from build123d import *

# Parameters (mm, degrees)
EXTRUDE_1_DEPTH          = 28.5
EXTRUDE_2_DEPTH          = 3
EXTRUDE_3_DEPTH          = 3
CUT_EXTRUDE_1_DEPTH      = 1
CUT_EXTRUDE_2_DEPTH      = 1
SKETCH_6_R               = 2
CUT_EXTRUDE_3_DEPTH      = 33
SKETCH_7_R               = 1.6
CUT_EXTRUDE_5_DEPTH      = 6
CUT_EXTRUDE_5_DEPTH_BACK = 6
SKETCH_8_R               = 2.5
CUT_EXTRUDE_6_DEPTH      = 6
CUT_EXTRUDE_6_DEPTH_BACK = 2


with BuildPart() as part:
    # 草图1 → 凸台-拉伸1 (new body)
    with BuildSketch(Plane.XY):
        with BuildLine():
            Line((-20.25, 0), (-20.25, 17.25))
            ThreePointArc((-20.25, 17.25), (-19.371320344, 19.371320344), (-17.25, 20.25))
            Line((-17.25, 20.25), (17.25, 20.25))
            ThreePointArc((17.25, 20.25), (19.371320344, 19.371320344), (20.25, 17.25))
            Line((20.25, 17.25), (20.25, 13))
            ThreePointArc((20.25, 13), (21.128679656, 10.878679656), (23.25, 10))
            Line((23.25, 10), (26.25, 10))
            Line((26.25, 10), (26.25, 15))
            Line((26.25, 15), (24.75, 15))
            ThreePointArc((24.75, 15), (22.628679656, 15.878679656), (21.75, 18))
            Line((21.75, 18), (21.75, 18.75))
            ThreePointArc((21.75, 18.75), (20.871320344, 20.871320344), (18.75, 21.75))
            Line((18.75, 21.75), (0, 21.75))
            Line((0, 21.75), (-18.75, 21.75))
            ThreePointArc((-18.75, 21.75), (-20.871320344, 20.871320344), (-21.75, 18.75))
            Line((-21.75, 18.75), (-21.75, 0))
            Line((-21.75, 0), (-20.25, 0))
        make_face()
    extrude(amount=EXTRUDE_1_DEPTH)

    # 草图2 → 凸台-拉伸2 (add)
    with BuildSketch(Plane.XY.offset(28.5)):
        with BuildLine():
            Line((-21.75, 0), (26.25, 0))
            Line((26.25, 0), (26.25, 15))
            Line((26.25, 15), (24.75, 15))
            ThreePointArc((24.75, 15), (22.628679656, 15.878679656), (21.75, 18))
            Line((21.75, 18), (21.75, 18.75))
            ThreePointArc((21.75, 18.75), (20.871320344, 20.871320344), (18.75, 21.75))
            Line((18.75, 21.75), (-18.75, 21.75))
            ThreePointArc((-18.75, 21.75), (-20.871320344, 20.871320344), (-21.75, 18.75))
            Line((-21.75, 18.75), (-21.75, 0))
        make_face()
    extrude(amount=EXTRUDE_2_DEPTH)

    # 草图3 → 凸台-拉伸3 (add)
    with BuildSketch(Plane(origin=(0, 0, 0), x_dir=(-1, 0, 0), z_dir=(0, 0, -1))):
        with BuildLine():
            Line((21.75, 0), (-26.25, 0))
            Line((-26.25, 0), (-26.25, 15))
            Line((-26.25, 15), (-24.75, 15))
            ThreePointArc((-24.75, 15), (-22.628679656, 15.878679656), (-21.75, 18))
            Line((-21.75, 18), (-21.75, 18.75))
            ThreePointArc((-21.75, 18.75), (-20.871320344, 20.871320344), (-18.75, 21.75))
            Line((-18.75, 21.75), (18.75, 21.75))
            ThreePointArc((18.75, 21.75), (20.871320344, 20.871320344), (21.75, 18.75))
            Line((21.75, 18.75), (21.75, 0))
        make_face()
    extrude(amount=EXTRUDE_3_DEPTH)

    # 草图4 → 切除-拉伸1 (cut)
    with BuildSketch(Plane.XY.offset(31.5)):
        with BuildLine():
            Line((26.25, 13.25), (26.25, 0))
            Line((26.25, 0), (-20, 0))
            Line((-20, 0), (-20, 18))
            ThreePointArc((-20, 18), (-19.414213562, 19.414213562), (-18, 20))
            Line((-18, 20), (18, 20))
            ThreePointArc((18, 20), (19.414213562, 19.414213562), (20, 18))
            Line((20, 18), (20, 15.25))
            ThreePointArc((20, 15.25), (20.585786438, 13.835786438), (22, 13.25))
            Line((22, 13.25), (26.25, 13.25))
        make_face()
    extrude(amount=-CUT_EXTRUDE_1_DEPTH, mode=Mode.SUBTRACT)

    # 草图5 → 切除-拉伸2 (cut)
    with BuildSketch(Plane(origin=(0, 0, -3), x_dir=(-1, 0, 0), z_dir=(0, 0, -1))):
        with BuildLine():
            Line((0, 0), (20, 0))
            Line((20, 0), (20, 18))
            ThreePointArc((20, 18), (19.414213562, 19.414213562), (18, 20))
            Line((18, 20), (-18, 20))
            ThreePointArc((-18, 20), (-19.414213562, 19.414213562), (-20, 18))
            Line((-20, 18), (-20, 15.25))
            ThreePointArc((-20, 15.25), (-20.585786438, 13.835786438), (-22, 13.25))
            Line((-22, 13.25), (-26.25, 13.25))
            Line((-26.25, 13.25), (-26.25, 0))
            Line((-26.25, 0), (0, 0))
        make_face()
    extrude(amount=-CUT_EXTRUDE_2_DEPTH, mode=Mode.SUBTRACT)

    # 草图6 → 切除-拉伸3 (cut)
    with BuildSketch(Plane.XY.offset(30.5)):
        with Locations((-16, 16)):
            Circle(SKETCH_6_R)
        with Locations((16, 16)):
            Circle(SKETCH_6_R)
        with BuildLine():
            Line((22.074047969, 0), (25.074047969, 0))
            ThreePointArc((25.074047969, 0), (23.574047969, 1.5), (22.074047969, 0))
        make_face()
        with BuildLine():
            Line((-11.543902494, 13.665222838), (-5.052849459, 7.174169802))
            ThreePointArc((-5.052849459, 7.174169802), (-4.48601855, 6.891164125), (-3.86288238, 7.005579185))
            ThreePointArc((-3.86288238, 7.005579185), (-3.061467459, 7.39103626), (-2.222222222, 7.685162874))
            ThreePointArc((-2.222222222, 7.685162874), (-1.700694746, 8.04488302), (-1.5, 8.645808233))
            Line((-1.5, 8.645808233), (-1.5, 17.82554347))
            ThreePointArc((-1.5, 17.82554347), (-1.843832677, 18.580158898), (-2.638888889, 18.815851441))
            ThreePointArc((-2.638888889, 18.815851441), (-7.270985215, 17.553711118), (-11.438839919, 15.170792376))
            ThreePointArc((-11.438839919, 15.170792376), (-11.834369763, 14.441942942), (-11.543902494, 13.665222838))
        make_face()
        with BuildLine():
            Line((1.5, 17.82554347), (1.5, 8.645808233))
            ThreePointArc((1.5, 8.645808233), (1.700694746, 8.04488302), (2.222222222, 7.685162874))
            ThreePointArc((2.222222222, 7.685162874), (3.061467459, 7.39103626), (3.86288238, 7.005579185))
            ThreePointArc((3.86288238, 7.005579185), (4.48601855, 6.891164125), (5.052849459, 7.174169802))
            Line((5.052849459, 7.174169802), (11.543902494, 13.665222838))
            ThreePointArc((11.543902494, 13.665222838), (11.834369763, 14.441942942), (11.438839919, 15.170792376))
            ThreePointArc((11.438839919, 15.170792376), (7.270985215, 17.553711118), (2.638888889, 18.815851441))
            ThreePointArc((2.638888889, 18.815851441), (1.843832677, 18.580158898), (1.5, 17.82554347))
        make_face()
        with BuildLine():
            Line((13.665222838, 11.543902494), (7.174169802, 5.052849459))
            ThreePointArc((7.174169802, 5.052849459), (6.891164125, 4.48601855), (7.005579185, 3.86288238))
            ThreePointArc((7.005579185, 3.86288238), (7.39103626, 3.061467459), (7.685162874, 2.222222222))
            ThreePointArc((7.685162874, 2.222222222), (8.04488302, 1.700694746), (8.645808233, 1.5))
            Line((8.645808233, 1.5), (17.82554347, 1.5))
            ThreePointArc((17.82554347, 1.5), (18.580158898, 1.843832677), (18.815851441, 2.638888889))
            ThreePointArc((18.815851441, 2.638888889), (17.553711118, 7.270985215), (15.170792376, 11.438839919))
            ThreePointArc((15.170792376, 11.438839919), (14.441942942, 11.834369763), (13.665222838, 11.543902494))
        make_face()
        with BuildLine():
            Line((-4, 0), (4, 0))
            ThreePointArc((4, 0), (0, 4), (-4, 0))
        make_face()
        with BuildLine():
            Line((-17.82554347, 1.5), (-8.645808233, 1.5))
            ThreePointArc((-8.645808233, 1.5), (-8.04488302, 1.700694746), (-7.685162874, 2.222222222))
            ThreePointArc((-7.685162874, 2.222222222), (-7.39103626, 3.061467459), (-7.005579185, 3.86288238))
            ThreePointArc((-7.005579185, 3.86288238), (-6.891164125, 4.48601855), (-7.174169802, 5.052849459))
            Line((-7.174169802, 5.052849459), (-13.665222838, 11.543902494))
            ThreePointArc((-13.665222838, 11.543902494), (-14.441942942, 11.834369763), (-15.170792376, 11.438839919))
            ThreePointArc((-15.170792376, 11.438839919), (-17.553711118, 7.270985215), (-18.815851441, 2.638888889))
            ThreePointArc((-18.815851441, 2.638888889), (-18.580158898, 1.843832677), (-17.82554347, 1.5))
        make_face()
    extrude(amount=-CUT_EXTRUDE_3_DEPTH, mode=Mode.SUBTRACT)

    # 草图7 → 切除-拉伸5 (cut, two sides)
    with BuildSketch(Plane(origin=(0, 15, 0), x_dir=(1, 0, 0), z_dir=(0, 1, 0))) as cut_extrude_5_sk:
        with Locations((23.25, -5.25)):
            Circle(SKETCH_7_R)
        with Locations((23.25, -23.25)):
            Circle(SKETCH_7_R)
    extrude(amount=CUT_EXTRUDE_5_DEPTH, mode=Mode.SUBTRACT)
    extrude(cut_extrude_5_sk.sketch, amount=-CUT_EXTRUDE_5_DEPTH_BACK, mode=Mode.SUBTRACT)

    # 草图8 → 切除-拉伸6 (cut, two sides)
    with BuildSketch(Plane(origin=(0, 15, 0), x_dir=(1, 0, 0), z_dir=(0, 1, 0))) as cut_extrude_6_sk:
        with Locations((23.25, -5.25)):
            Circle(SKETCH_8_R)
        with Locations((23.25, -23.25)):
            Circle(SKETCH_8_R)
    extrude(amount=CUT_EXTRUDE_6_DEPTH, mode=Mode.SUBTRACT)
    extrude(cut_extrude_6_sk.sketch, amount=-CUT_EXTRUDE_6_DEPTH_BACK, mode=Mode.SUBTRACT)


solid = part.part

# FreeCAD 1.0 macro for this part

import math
import FreeCAD as App
import Part
import Sketcher
Q = App.Units.Quantity

doc = App.newDocument("Part")
body = doc.addObject("PartDesign::Body", "Body")

sketch1 = body.newObject("Sketcher::SketchObject", "Sketch")
sketch1.AttachmentSupport = (doc.getObject("XY_Plane"), [""])
sketch1.MapMode = "FlatFace"
sketch1.addGeometry(Part.LineSegment(App.Vector(-20.25, 0, 0), App.Vector(-20.25, 17.25, 0)), False)
sketch1.addGeometry(Part.ArcOfCircle(Part.Circle(App.Vector(-17.25, 17.25, 0), App.Vector(0, 0, 1), 3), math.radians(90), math.radians(180)), False)
sketch1.addGeometry(Part.LineSegment(App.Vector(-17.25, 20.25, 0), App.Vector(17.25, 20.25, 0)), False)
sketch1.addGeometry(Part.ArcOfCircle(Part.Circle(App.Vector(17.25, 17.25, 0), App.Vector(0, 0, 1), 3), math.radians(0), math.radians(90)), False)
sketch1.addGeometry(Part.LineSegment(App.Vector(20.25, 17.25, 0), App.Vector(20.25, 13, 0)), False)
sketch1.addGeometry(Part.ArcOfCircle(Part.Circle(App.Vector(23.25, 13, 0), App.Vector(0, 0, 1), 3), math.radians(180), math.radians(270)), False)
sketch1.addGeometry(Part.LineSegment(App.Vector(23.25, 10, 0), App.Vector(26.25, 10, 0)), False)
sketch1.addGeometry(Part.LineSegment(App.Vector(26.25, 10, 0), App.Vector(26.25, 15, 0)), False)
sketch1.addGeometry(Part.LineSegment(App.Vector(26.25, 15, 0), App.Vector(24.75, 15, 0)), False)
sketch1.addGeometry(Part.ArcOfCircle(Part.Circle(App.Vector(24.75, 18, 0), App.Vector(0, 0, 1), 3), math.radians(180), math.radians(270)), False)
sketch1.addGeometry(Part.LineSegment(App.Vector(21.75, 18, 0), App.Vector(21.75, 18.75, 0)), False)
sketch1.addGeometry(Part.ArcOfCircle(Part.Circle(App.Vector(18.75, 18.75, 0), App.Vector(0, 0, 1), 3), math.radians(0), math.radians(90)), False)
sketch1.addGeometry(Part.LineSegment(App.Vector(18.75, 21.75, 0), App.Vector(-18.75, 21.75, 0)), False)
sketch1.addGeometry(Part.ArcOfCircle(Part.Circle(App.Vector(-18.75, 18.75, 0), App.Vector(0, 0, 1), 3), math.radians(90), math.radians(180)), False)
sketch1.addGeometry(Part.LineSegment(App.Vector(-21.75, 18.75, 0), App.Vector(-21.75, 0, 0)), False)
sketch1.addGeometry(Part.LineSegment(App.Vector(-21.75, 0, 0), App.Vector(-20.25, 0, 0)), False)
sketch1.addConstraint(Sketcher.Constraint("Tangent", 0, 2, 1, 2))
sketch1.addConstraint(Sketcher.Constraint("Tangent", 1, 1, 2, 1))
sketch1.addConstraint(Sketcher.Constraint("Tangent", 2, 2, 3, 2))
sketch1.addConstraint(Sketcher.Constraint("Tangent", 3, 1, 4, 1))
sketch1.addConstraint(Sketcher.Constraint("Tangent", 4, 2, 5, 1))
sketch1.addConstraint(Sketcher.Constraint("Tangent", 5, 2, 6, 1))
sketch1.addConstraint(Sketcher.Constraint("Coincident", 6, 2, 7, 1))
sketch1.addConstraint(Sketcher.Constraint("Coincident", 7, 2, 8, 1))
sketch1.addConstraint(Sketcher.Constraint("Tangent", 8, 2, 9, 2))
sketch1.addConstraint(Sketcher.Constraint("Tangent", 9, 1, 10, 1))
sketch1.addConstraint(Sketcher.Constraint("Tangent", 10, 2, 11, 1))
sketch1.addConstraint(Sketcher.Constraint("Tangent", 11, 2, 12, 1))
sketch1.addConstraint(Sketcher.Constraint("Tangent", 12, 2, 13, 1))
sketch1.addConstraint(Sketcher.Constraint("Tangent", 13, 2, 14, 1))
sketch1.addConstraint(Sketcher.Constraint("Coincident", 14, 2, 15, 1))
sketch1.addConstraint(Sketcher.Constraint("Coincident", 15, 2, 0, 1))
sketch1.addConstraint(Sketcher.Constraint("Vertical", 0))
sketch1.addConstraint(Sketcher.Constraint("Horizontal", 2))
sketch1.addConstraint(Sketcher.Constraint("Vertical", 4))
sketch1.addConstraint(Sketcher.Constraint("Horizontal", 6))
sketch1.addConstraint(Sketcher.Constraint("Vertical", 7))
sketch1.addConstraint(Sketcher.Constraint("Horizontal", 8))
sketch1.addConstraint(Sketcher.Constraint("Vertical", 10))
sketch1.addConstraint(Sketcher.Constraint("Horizontal", 12))
sketch1.addConstraint(Sketcher.Constraint("Vertical", 14))
sketch1.addConstraint(Sketcher.Constraint("Horizontal", 15))
sketch1.addConstraint(Sketcher.Constraint("Equal", 1, 3))
sketch1.addConstraint(Sketcher.Constraint("Equal", 3, 5))
sketch1.addConstraint(Sketcher.Constraint("Equal", 5, 9))
sketch1.addConstraint(Sketcher.Constraint("Equal", 9, 11))
sketch1.addConstraint(Sketcher.Constraint("Equal", 11, 13))
sketch1.addConstraint(Sketcher.Constraint("PointOnObject", 14, 2, -1))
sketch1.addConstraint(Sketcher.Constraint("Equal", 8, 15))
sketch1.addConstraint(Sketcher.Constraint("Radius", 1, Q("3 mm")))
sketch1.addConstraint(Sketcher.Constraint("DistanceX", 6, 1, 6, 2, Q("3 mm")))
sketch1.addConstraint(Sketcher.Constraint("DistanceY", 7, 1, 7, 2, Q("5 mm")))
sketch1.addConstraint(Sketcher.Constraint("DistanceX", 2, 1, 2, 2, Q("34.5 mm")))
sketch1.addConstraint(Sketcher.Constraint("DistanceX", 8, 2, 8, 1, Q("1.5 mm")))
sketch1.addConstraint(Sketcher.Constraint("DistanceY", -1, 1, 5, 3, Q("13 mm")))
sketch1.addConstraint(Sketcher.Constraint("DistanceY", 0, 1, 0, 2, Q("17.25 mm")))
sketch1.addConstraint(Sketcher.Constraint("DistanceY", 10, 1, 10, 2, Q("0.75 mm")))
sketch1.addConstraint(Sketcher.Constraint("DistanceX", 1, 3, -1, 1, Q("17.25 mm")))
pad1 = body.newObject("PartDesign::Pad", "Pad")
pad1.Profile = sketch1
pad1.Length = 28.5

sketch2 = body.newObject("Sketcher::SketchObject", "Sketch001")
sketch2.AttachmentSupport = (doc.getObject("XY_Plane"), [""])
sketch2.MapMode = "FlatFace"
sketch2.AttachmentOffset = App.Placement(App.Vector(0, 0, 28.5), App.Rotation())
sketch2.addGeometry(Part.LineSegment(App.Vector(-21.75, 0, 0), App.Vector(26.25, 0, 0)), False)
sketch2.addGeometry(Part.LineSegment(App.Vector(26.25, 0, 0), App.Vector(26.25, 15, 0)), False)
sketch2.addGeometry(Part.LineSegment(App.Vector(26.25, 15, 0), App.Vector(24.75, 15, 0)), False)
sketch2.addGeometry(Part.ArcOfCircle(Part.Circle(App.Vector(24.75, 18, 0), App.Vector(0, 0, 1), 3), math.radians(180), math.radians(270)), False)
sketch2.addGeometry(Part.LineSegment(App.Vector(21.75, 18, 0), App.Vector(21.75, 18.75, 0)), False)
sketch2.addGeometry(Part.ArcOfCircle(Part.Circle(App.Vector(18.75, 18.75, 0), App.Vector(0, 0, 1), 3), math.radians(0), math.radians(90)), False)
sketch2.addGeometry(Part.LineSegment(App.Vector(18.75, 21.75, 0), App.Vector(-18.75, 21.75, 0)), False)
sketch2.addGeometry(Part.ArcOfCircle(Part.Circle(App.Vector(-18.75, 18.75, 0), App.Vector(0, 0, 1), 3), math.radians(90), math.radians(180)), False)
sketch2.addGeometry(Part.LineSegment(App.Vector(-21.75, 18.75, 0), App.Vector(-21.75, 0, 0)), False)
sketch2.addConstraint(Sketcher.Constraint("Coincident", 0, 2, 1, 1))
sketch2.addConstraint(Sketcher.Constraint("Coincident", 1, 2, 2, 1))
sketch2.addConstraint(Sketcher.Constraint("Tangent", 2, 2, 3, 2))
sketch2.addConstraint(Sketcher.Constraint("Tangent", 3, 1, 4, 1))
sketch2.addConstraint(Sketcher.Constraint("Tangent", 4, 2, 5, 1))
sketch2.addConstraint(Sketcher.Constraint("Tangent", 5, 2, 6, 1))
sketch2.addConstraint(Sketcher.Constraint("Tangent", 6, 2, 7, 1))
sketch2.addConstraint(Sketcher.Constraint("Tangent", 7, 2, 8, 1))
sketch2.addConstraint(Sketcher.Constraint("Coincident", 8, 2, 0, 1))
sketch2.addConstraint(Sketcher.Constraint("Horizontal", 0))
sketch2.addConstraint(Sketcher.Constraint("Vertical", 1))
sketch2.addConstraint(Sketcher.Constraint("Horizontal", 2))
sketch2.addConstraint(Sketcher.Constraint("Vertical", 4))
sketch2.addConstraint(Sketcher.Constraint("Horizontal", 6))
sketch2.addConstraint(Sketcher.Constraint("Vertical", 8))
sketch2.addConstraint(Sketcher.Constraint("Equal", 3, 5))
sketch2.addConstraint(Sketcher.Constraint("Equal", 5, 7))
sketch2.addConstraint(Sketcher.Constraint("PointOnObject", 0, 2, -1))
sketch2.addConstraint(Sketcher.Constraint("Radius", 3, Q("3 mm")))
sketch2.addConstraint(Sketcher.Constraint("DistanceX", 0, 1, 0, 2, Q("48 mm")))
sketch2.addConstraint(Sketcher.Constraint("DistanceY", 1, 1, 1, 2, Q("15 mm")))
sketch2.addConstraint(Sketcher.Constraint("DistanceX", 2, 2, 2, 1, Q("1.5 mm")))
sketch2.addConstraint(Sketcher.Constraint("DistanceY", 4, 1, 4, 2, Q("0.75 mm")))
sketch2.addConstraint(Sketcher.Constraint("DistanceX", -1, 1, 3, 3, Q("24.75 mm")))
pad2 = body.newObject("PartDesign::Pad", "Pad001")
pad2.Profile = sketch2
pad2.Length = 3

sketch3 = body.newObject("Sketcher::SketchObject", "Sketch002")
sketch3.AttachmentSupport = (doc.getObject("XY_Plane"), [""])
sketch3.MapMode = "FlatFace"
sketch3.addGeometry(Part.LineSegment(App.Vector(26.25, 0, 0), App.Vector(-21.75, 0, 0)), False)
sketch3.addGeometry(Part.LineSegment(App.Vector(-21.75, 0, 0), App.Vector(-21.75, 18.75, 0)), False)
sketch3.addGeometry(Part.ArcOfCircle(Part.Circle(App.Vector(-18.75, 18.75, 0), App.Vector(0, 0, 1), 3), math.radians(90), math.radians(180)), False)
sketch3.addGeometry(Part.LineSegment(App.Vector(-18.75, 21.75, 0), App.Vector(18.75, 21.75, 0)), False)
sketch3.addGeometry(Part.ArcOfCircle(Part.Circle(App.Vector(18.75, 18.75, 0), App.Vector(0, 0, 1), 3), math.radians(0), math.radians(90)), False)
sketch3.addGeometry(Part.LineSegment(App.Vector(21.75, 18.75, 0), App.Vector(21.75, 18, 0)), False)
sketch3.addGeometry(Part.ArcOfCircle(Part.Circle(App.Vector(24.75, 18, 0), App.Vector(0, 0, 1), 3), math.radians(180), math.radians(270)), False)
sketch3.addGeometry(Part.LineSegment(App.Vector(24.75, 15, 0), App.Vector(26.25, 15, 0)), False)
sketch3.addGeometry(Part.LineSegment(App.Vector(26.25, 15, 0), App.Vector(26.25, 0, 0)), False)
sketch3.addConstraint(Sketcher.Constraint("Coincident", 0, 2, 1, 1))
sketch3.addConstraint(Sketcher.Constraint("Tangent", 1, 2, 2, 2))
sketch3.addConstraint(Sketcher.Constraint("Tangent", 2, 1, 3, 1))
sketch3.addConstraint(Sketcher.Constraint("Tangent", 3, 2, 4, 2))
sketch3.addConstraint(Sketcher.Constraint("Tangent", 4, 1, 5, 1))
sketch3.addConstraint(Sketcher.Constraint("Tangent", 5, 2, 6, 1))
sketch3.addConstraint(Sketcher.Constraint("Tangent", 6, 2, 7, 1))
sketch3.addConstraint(Sketcher.Constraint("Coincident", 7, 2, 8, 1))
sketch3.addConstraint(Sketcher.Constraint("Coincident", 8, 2, 0, 1))
sketch3.addConstraint(Sketcher.Constraint("Horizontal", 0))
sketch3.addConstraint(Sketcher.Constraint("Vertical", 1))
sketch3.addConstraint(Sketcher.Constraint("Horizontal", 3))
sketch3.addConstraint(Sketcher.Constraint("Vertical", 5))
sketch3.addConstraint(Sketcher.Constraint("Horizontal", 7))
sketch3.addConstraint(Sketcher.Constraint("Vertical", 8))
sketch3.addConstraint(Sketcher.Constraint("Equal", 2, 4))
sketch3.addConstraint(Sketcher.Constraint("Equal", 4, 6))
sketch3.addConstraint(Sketcher.Constraint("PointOnObject", 0, 2, -1))
sketch3.addConstraint(Sketcher.Constraint("Radius", 2, Q("3 mm")))
sketch3.addConstraint(Sketcher.Constraint("DistanceX", 0, 2, 0, 1, Q("48 mm")))
sketch3.addConstraint(Sketcher.Constraint("DistanceY", 8, 2, 8, 1, Q("15 mm")))
sketch3.addConstraint(Sketcher.Constraint("DistanceX", 3, 1, 3, 2, Q("37.5 mm")))
sketch3.addConstraint(Sketcher.Constraint("DistanceY", 1, 1, 1, 2, Q("18.75 mm")))
sketch3.addConstraint(Sketcher.Constraint("DistanceX", 2, 3, -1, 1, Q("18.75 mm")))
pad3 = body.newObject("PartDesign::Pad", "Pad002")
pad3.Profile = sketch3
pad3.Length = 3
pad3.Reversed = True

sketch4 = body.newObject("Sketcher::SketchObject", "Sketch003")
sketch4.AttachmentSupport = (doc.getObject("XY_Plane"), [""])
sketch4.MapMode = "FlatFace"
sketch4.AttachmentOffset = App.Placement(App.Vector(0, 0, 31.5), App.Rotation())
sketch4.addGeometry(Part.LineSegment(App.Vector(26.25, 0, 0), App.Vector(26.25, 13.25, 0)), False)
sketch4.addGeometry(Part.LineSegment(App.Vector(26.25, 13.25, 0), App.Vector(22, 13.25, 0)), False)
sketch4.addGeometry(Part.ArcOfCircle(Part.Circle(App.Vector(22, 15.25, 0), App.Vector(0, 0, 1), 2), math.radians(-180), math.radians(-90)), False)
sketch4.addGeometry(Part.LineSegment(App.Vector(20, 15.25, 0), App.Vector(20, 18, 0)), False)
sketch4.addGeometry(Part.ArcOfCircle(Part.Circle(App.Vector(18, 18, 0), App.Vector(0, 0, 1), 2), math.radians(0), math.radians(90)), False)
sketch4.addGeometry(Part.LineSegment(App.Vector(18, 20, 0), App.Vector(-18, 20, 0)), False)
sketch4.addGeometry(Part.ArcOfCircle(Part.Circle(App.Vector(-18, 18, 0), App.Vector(0, 0, 1), 2), math.radians(90), math.radians(180)), False)
sketch4.addGeometry(Part.LineSegment(App.Vector(-20, 18, 0), App.Vector(-20, 0, 0)), False)
sketch4.addGeometry(Part.LineSegment(App.Vector(-20, 0, 0), App.Vector(26.25, 0, 0)), False)
sketch4.addConstraint(Sketcher.Constraint("Coincident", 0, 2, 1, 1))
sketch4.addConstraint(Sketcher.Constraint("Tangent", 1, 2, 2, 2))
sketch4.addConstraint(Sketcher.Constraint("Tangent", 2, 1, 3, 1))
sketch4.addConstraint(Sketcher.Constraint("Tangent", 3, 2, 4, 1))
sketch4.addConstraint(Sketcher.Constraint("Tangent", 4, 2, 5, 1))
sketch4.addConstraint(Sketcher.Constraint("Tangent", 5, 2, 6, 1))
sketch4.addConstraint(Sketcher.Constraint("Tangent", 6, 2, 7, 1))
sketch4.addConstraint(Sketcher.Constraint("Coincident", 7, 2, 8, 1))
sketch4.addConstraint(Sketcher.Constraint("Coincident", 8, 2, 0, 1))
sketch4.addConstraint(Sketcher.Constraint("Vertical", 0))
sketch4.addConstraint(Sketcher.Constraint("Horizontal", 1))
sketch4.addConstraint(Sketcher.Constraint("Vertical", 3))
sketch4.addConstraint(Sketcher.Constraint("Horizontal", 5))
sketch4.addConstraint(Sketcher.Constraint("Vertical", 7))
sketch4.addConstraint(Sketcher.Constraint("Horizontal", 8))
sketch4.addConstraint(Sketcher.Constraint("Equal", 2, 4))
sketch4.addConstraint(Sketcher.Constraint("Equal", 4, 6))
sketch4.addConstraint(Sketcher.Constraint("PointOnObject", 7, 2, -1))
sketch4.addConstraint(Sketcher.Constraint("Radius", 2, Q("2 mm")))
sketch4.addConstraint(Sketcher.Constraint("DistanceX", 5, 2, 5, 1, Q("36 mm")))
sketch4.addConstraint(Sketcher.Constraint("DistanceY", 7, 2, 7, 1, Q("18 mm")))
sketch4.addConstraint(Sketcher.Constraint("DistanceX", -1, 1, 2, 3, Q("22 mm")))
sketch4.addConstraint(Sketcher.Constraint("DistanceX", 1, 2, 1, 1, Q("4.25 mm")))
sketch4.addConstraint(Sketcher.Constraint("DistanceY", 0, 1, 0, 2, Q("13.25 mm")))
pocket1 = body.newObject("PartDesign::Pocket", "Pocket")
pocket1.Profile = sketch4
pocket1.Length = 1

sketch5 = body.newObject("Sketcher::SketchObject", "Sketch004")
sketch5.AttachmentSupport = (doc.getObject("XY_Plane"), [""])
sketch5.MapMode = "FlatFace"
sketch5.AttachmentOffset = App.Placement(App.Vector(0, 0, -3), App.Rotation())
sketch5.addGeometry(Part.LineSegment(App.Vector(-20, 0, 0), App.Vector(-20, 18, 0)), False)
sketch5.addGeometry(Part.ArcOfCircle(Part.Circle(App.Vector(-18, 18, 0), App.Vector(0, 0, 1), 2), math.radians(90), math.radians(180)), False)
sketch5.addGeometry(Part.LineSegment(App.Vector(-18, 20, 0), App.Vector(18, 20, 0)), False)
sketch5.addGeometry(Part.ArcOfCircle(Part.Circle(App.Vector(18, 18, 0), App.Vector(0, 0, 1), 2), math.radians(0), math.radians(90)), False)
sketch5.addGeometry(Part.LineSegment(App.Vector(20, 18, 0), App.Vector(20, 15.25, 0)), False)
sketch5.addGeometry(Part.ArcOfCircle(Part.Circle(App.Vector(22, 15.25, 0), App.Vector(0, 0, 1), 2), math.radians(-180), math.radians(-90)), False)
sketch5.addGeometry(Part.LineSegment(App.Vector(22, 13.25, 0), App.Vector(26.25, 13.25, 0)), False)
sketch5.addGeometry(Part.LineSegment(App.Vector(26.25, 13.25, 0), App.Vector(26.25, 0, 0)), False)
sketch5.addGeometry(Part.LineSegment(App.Vector(26.25, 0, 0), App.Vector(-20, 0, 0)), False)
sketch5.addConstraint(Sketcher.Constraint("Tangent", 0, 2, 1, 2))
sketch5.addConstraint(Sketcher.Constraint("Tangent", 1, 1, 2, 1))
sketch5.addConstraint(Sketcher.Constraint("Tangent", 2, 2, 3, 2))
sketch5.addConstraint(Sketcher.Constraint("Tangent", 3, 1, 4, 1))
sketch5.addConstraint(Sketcher.Constraint("Tangent", 4, 2, 5, 1))
sketch5.addConstraint(Sketcher.Constraint("Tangent", 5, 2, 6, 1))
sketch5.addConstraint(Sketcher.Constraint("Coincident", 6, 2, 7, 1))
sketch5.addConstraint(Sketcher.Constraint("Coincident", 7, 2, 8, 1))
sketch5.addConstraint(Sketcher.Constraint("Coincident", 8, 2, 0, 1))
sketch5.addConstraint(Sketcher.Constraint("Vertical", 0))
sketch5.addConstraint(Sketcher.Constraint("Horizontal", 2))
sketch5.addConstraint(Sketcher.Constraint("Vertical", 4))
sketch5.addConstraint(Sketcher.Constraint("Horizontal", 6))
sketch5.addConstraint(Sketcher.Constraint("Vertical", 7))
sketch5.addConstraint(Sketcher.Constraint("Horizontal", 8))
sketch5.addConstraint(Sketcher.Constraint("Equal", 1, 3))
sketch5.addConstraint(Sketcher.Constraint("Equal", 3, 5))
sketch5.addConstraint(Sketcher.Constraint("PointOnObject", 7, 2, -1))
sketch5.addConstraint(Sketcher.Constraint("Radius", 1, Q("2 mm")))
sketch5.addConstraint(Sketcher.Constraint("DistanceX", 2, 1, 2, 2, Q("36 mm")))
sketch5.addConstraint(Sketcher.Constraint("DistanceY", 0, 1, 0, 2, Q("18 mm")))
sketch5.addConstraint(Sketcher.Constraint("DistanceX", 1, 3, -1, 1, Q("18 mm")))
sketch5.addConstraint(Sketcher.Constraint("DistanceX", 6, 1, 6, 2, Q("4.25 mm")))
sketch5.addConstraint(Sketcher.Constraint("DistanceY", 4, 2, 4, 1, Q("2.75 mm")))
pocket2 = body.newObject("PartDesign::Pocket", "Pocket001")
pocket2.Profile = sketch5
pocket2.Length = 1
pocket2.Reversed = True

sketch6 = body.newObject("Sketcher::SketchObject", "Sketch005")
sketch6.AttachmentSupport = (doc.getObject("XY_Plane"), [""])
sketch6.MapMode = "FlatFace"
sketch6.AttachmentOffset = App.Placement(App.Vector(0, 0, 30.5), App.Rotation())
sketch6.addGeometry(Part.Circle(App.Vector(-16, 16, 0), App.Vector(0, 0, 1), 2), False)
sketch6.addGeometry(Part.Circle(App.Vector(16, 16, 0), App.Vector(0, 0, 1), 2), False)
sketch6.addGeometry(Part.LineSegment(App.Vector(22.074048, 0, 0), App.Vector(25.074048, 0, 0)), False)
sketch6.addGeometry(Part.ArcOfCircle(Part.Circle(App.Vector(23.574048, 0, 0), App.Vector(0, 0, 1), 1.5), math.radians(0), math.radians(180)), False)
sketch6.addGeometry(Part.LineSegment(App.Vector(-11.543902, 13.665223, 0), App.Vector(-5.052849, 7.17417, 0)), False)
sketch6.addGeometry(Part.ArcOfCircle(Part.Circle(App.Vector(-4.345743, 7.881277, 0), App.Vector(0, 0, 1), 1), math.radians(-135), math.radians(-61.12762)), False)
sketch6.addGeometry(Part.ArcOfCircle(Part.Circle(App.Vector(0, 0, 0), App.Vector(0, 0, 1), 8), math.radians(106.12762), math.radians(118.87238)), False)
sketch6.addGeometry(Part.ArcOfCircle(Part.Circle(App.Vector(-2.5, 8.645808, 0), App.Vector(0, 0, 1), 1), math.radians(-73.87238), math.radians(0)), False)
sketch6.addGeometry(Part.LineSegment(App.Vector(-1.5, 8.645808, 0), App.Vector(-1.5, 17.825543, 0)), False)
sketch6.addGeometry(Part.ArcOfCircle(Part.Circle(App.Vector(-2.5, 17.825543, 0), App.Vector(0, 0, 1), 1), math.radians(0), math.radians(97.983556)), False)
sketch6.addGeometry(Part.ArcOfCircle(Part.Circle(App.Vector(0, 0, 0), App.Vector(0, 0, 1), 19), math.radians(97.983556), math.radians(127.016444)), False)
sketch6.addGeometry(Part.ArcOfCircle(Part.Circle(App.Vector(-10.836796, 14.37233, 0), App.Vector(0, 0, 1), 1), math.radians(127.016444), math.radians(225)), False)
sketch6.addGeometry(Part.LineSegment(App.Vector(1.5, 17.825543, 0), App.Vector(1.5, 8.645808, 0)), False)
sketch6.addGeometry(Part.ArcOfCircle(Part.Circle(App.Vector(2.5, 8.645808, 0), App.Vector(0, 0, 1), 1), math.radians(180), math.radians(253.87238)), False)
sketch6.addGeometry(Part.ArcOfCircle(Part.Circle(App.Vector(0, 0, 0), App.Vector(0, 0, 1), 8), math.radians(61.12762), math.radians(73.87238)), False)
sketch6.addGeometry(Part.ArcOfCircle(Part.Circle(App.Vector(4.345743, 7.881277, 0), App.Vector(0, 0, 1), 1), math.radians(-118.87238), math.radians(-45)), False)
sketch6.addGeometry(Part.LineSegment(App.Vector(5.052849, 7.17417, 0), App.Vector(11.543902, 13.665223, 0)), False)
sketch6.addGeometry(Part.ArcOfCircle(Part.Circle(App.Vector(10.836796, 14.37233, 0), App.Vector(0, 0, 1), 1), math.radians(-45), math.radians(52.983556)), False)
sketch6.addGeometry(Part.ArcOfCircle(Part.Circle(App.Vector(0, 0, 0), App.Vector(0, 0, 1), 19), math.radians(52.983556), math.radians(82.016444)), False)
sketch6.addGeometry(Part.ArcOfCircle(Part.Circle(App.Vector(2.5, 17.825543, 0), App.Vector(0, 0, 1), 1), math.radians(82.016444), math.radians(180)), False)
sketch6.addGeometry(Part.LineSegment(App.Vector(13.665223, 11.543902, 0), App.Vector(7.17417, 5.052849, 0)), False)
sketch6.addGeometry(Part.ArcOfCircle(Part.Circle(App.Vector(7.881277, 4.345743, 0), App.Vector(0, 0, 1), 1), math.radians(135), math.radians(208.87238)), False)
sketch6.addGeometry(Part.ArcOfCircle(Part.Circle(App.Vector(0, 0, 0), App.Vector(0, 0, 1), 8), math.radians(16.12762), math.radians(28.87238)), False)
sketch6.addGeometry(Part.ArcOfCircle(Part.Circle(App.Vector(8.645808, 2.5, 0), App.Vector(0, 0, 1), 1), math.radians(-163.87238), math.radians(-90)), False)
sketch6.addGeometry(Part.LineSegment(App.Vector(8.645808, 1.5, 0), App.Vector(17.825543, 1.5, 0)), False)
sketch6.addGeometry(Part.ArcOfCircle(Part.Circle(App.Vector(17.825543, 2.5, 0), App.Vector(0, 0, 1), 1), math.radians(-90), math.radians(7.983556)), False)
sketch6.addGeometry(Part.ArcOfCircle(Part.Circle(App.Vector(0, 0, 0), App.Vector(0, 0, 1), 19), math.radians(7.983556), math.radians(37.016444)), False)
sketch6.addGeometry(Part.ArcOfCircle(Part.Circle(App.Vector(14.37233, 10.836796, 0), App.Vector(0, 0, 1), 1), math.radians(37.016444), math.radians(135)), False)
sketch6.addGeometry(Part.LineSegment(App.Vector(-4, 0, 0), App.Vector(4, 0, 0)), False)
sketch6.addGeometry(Part.ArcOfCircle(Part.Circle(App.Vector(0, 0, 0), App.Vector(0, 0, 1), 4), math.radians(0), math.radians(180)), False)
sketch6.addGeometry(Part.LineSegment(App.Vector(-17.825543, 1.5, 0), App.Vector(-8.645808, 1.5, 0)), False)
sketch6.addGeometry(Part.ArcOfCircle(Part.Circle(App.Vector(-8.645808, 2.5, 0), App.Vector(0, 0, 1), 1), math.radians(-90), math.radians(-16.12762)), False)
sketch6.addGeometry(Part.ArcOfCircle(Part.Circle(App.Vector(0, 0, 0), App.Vector(0, 0, 1), 8), math.radians(151.12762), math.radians(163.87238)), False)
sketch6.addGeometry(Part.ArcOfCircle(Part.Circle(App.Vector(-7.881277, 4.345743, 0), App.Vector(0, 0, 1), 1), math.radians(-28.87238), math.radians(45)), False)
sketch6.addGeometry(Part.LineSegment(App.Vector(-7.17417, 5.052849, 0), App.Vector(-13.665223, 11.543902, 0)), False)
sketch6.addGeometry(Part.ArcOfCircle(Part.Circle(App.Vector(-14.37233, 10.836796, 0), App.Vector(0, 0, 1), 1), math.radians(45), math.radians(142.983556)), False)
sketch6.addGeometry(Part.ArcOfCircle(Part.Circle(App.Vector(0, 0, 0), App.Vector(0, 0, 1), 19), math.radians(142.983556), math.radians(172.016444)), False)
sketch6.addGeometry(Part.ArcOfCircle(Part.Circle(App.Vector(-17.825543, 2.5, 0), App.Vector(0, 0, 1), 1), math.radians(172.016444), math.radians(270)), False)
sketch6.addConstraint(Sketcher.Constraint("Coincident", 2, 1, 3, 2))
sketch6.addConstraint(Sketcher.Constraint("Coincident", 3, 1, 2, 2))
sketch6.addConstraint(Sketcher.Constraint("Tangent", 4, 2, 5, 1))
sketch6.addConstraint(Sketcher.Constraint("Tangent", 5, 2, 6, 2))
sketch6.addConstraint(Sketcher.Constraint("Tangent", 6, 1, 7, 1))
sketch6.addConstraint(Sketcher.Constraint("Tangent", 7, 2, 8, 1))
sketch6.addConstraint(Sketcher.Constraint("Tangent", 8, 2, 9, 1))
sketch6.addConstraint(Sketcher.Constraint("Tangent", 9, 2, 10, 1))
sketch6.addConstraint(Sketcher.Constraint("Tangent", 10, 2, 11, 1))
sketch6.addConstraint(Sketcher.Constraint("Tangent", 11, 2, 4, 1))
sketch6.addConstraint(Sketcher.Constraint("Tangent", 12, 2, 13, 1))
sketch6.addConstraint(Sketcher.Constraint("Tangent", 13, 2, 14, 2))
sketch6.addConstraint(Sketcher.Constraint("Tangent", 14, 1, 15, 1))
sketch6.addConstraint(Sketcher.Constraint("Tangent", 15, 2, 16, 1))
sketch6.addConstraint(Sketcher.Constraint("Tangent", 16, 2, 17, 1))
sketch6.addConstraint(Sketcher.Constraint("Tangent", 17, 2, 18, 1))
sketch6.addConstraint(Sketcher.Constraint("Tangent", 18, 2, 19, 1))
sketch6.addConstraint(Sketcher.Constraint("Tangent", 19, 2, 12, 1))
sketch6.addConstraint(Sketcher.Constraint("Tangent", 20, 2, 21, 1))
sketch6.addConstraint(Sketcher.Constraint("Tangent", 21, 2, 22, 2))
sketch6.addConstraint(Sketcher.Constraint("Tangent", 22, 1, 23, 1))
sketch6.addConstraint(Sketcher.Constraint("Tangent", 23, 2, 24, 1))
sketch6.addConstraint(Sketcher.Constraint("Tangent", 24, 2, 25, 1))
sketch6.addConstraint(Sketcher.Constraint("Tangent", 25, 2, 26, 1))
sketch6.addConstraint(Sketcher.Constraint("Tangent", 26, 2, 27, 1))
sketch6.addConstraint(Sketcher.Constraint("Tangent", 27, 2, 20, 1))
sketch6.addConstraint(Sketcher.Constraint("Coincident", 28, 1, 29, 2))
sketch6.addConstraint(Sketcher.Constraint("Coincident", 29, 1, 28, 2))
sketch6.addConstraint(Sketcher.Constraint("Tangent", 30, 2, 31, 1))
sketch6.addConstraint(Sketcher.Constraint("Tangent", 31, 2, 32, 2))
sketch6.addConstraint(Sketcher.Constraint("Tangent", 32, 1, 33, 1))
sketch6.addConstraint(Sketcher.Constraint("Tangent", 33, 2, 34, 1))
sketch6.addConstraint(Sketcher.Constraint("Tangent", 34, 2, 35, 1))
sketch6.addConstraint(Sketcher.Constraint("Tangent", 35, 2, 36, 1))
sketch6.addConstraint(Sketcher.Constraint("Tangent", 36, 2, 37, 1))
sketch6.addConstraint(Sketcher.Constraint("Tangent", 37, 2, 30, 1))
sketch6.addConstraint(Sketcher.Constraint("Horizontal", 2))
sketch6.addConstraint(Sketcher.Constraint("Vertical", 8))
sketch6.addConstraint(Sketcher.Constraint("Vertical", 12))
sketch6.addConstraint(Sketcher.Constraint("Horizontal", 24))
sketch6.addConstraint(Sketcher.Constraint("Horizontal", 28))
sketch6.addConstraint(Sketcher.Constraint("Horizontal", 30))
sketch6.addConstraint(Sketcher.Constraint("Coincident", 6, 3, -1, 1))
sketch6.addConstraint(Sketcher.Constraint("Coincident", 10, 3, -1, 1))
sketch6.addConstraint(Sketcher.Constraint("Coincident", 14, 3, -1, 1))
sketch6.addConstraint(Sketcher.Constraint("Coincident", 18, 3, -1, 1))
sketch6.addConstraint(Sketcher.Constraint("Coincident", 22, 3, -1, 1))
sketch6.addConstraint(Sketcher.Constraint("Coincident", 26, 3, -1, 1))
sketch6.addConstraint(Sketcher.Constraint("Coincident", 29, 3, -1, 1))
sketch6.addConstraint(Sketcher.Constraint("Coincident", 32, 3, -1, 1))
sketch6.addConstraint(Sketcher.Constraint("Coincident", 36, 3, -1, 1))
sketch6.addConstraint(Sketcher.Constraint("Equal", 0, 1))
sketch6.addConstraint(Sketcher.Constraint("Equal", 5, 7))
sketch6.addConstraint(Sketcher.Constraint("Equal", 7, 9))
sketch6.addConstraint(Sketcher.Constraint("Equal", 9, 11))
sketch6.addConstraint(Sketcher.Constraint("Equal", 11, 13))
sketch6.addConstraint(Sketcher.Constraint("Equal", 6, 14))
sketch6.addConstraint(Sketcher.Constraint("Equal", 13, 15))
sketch6.addConstraint(Sketcher.Constraint("Equal", 15, 17))
sketch6.addConstraint(Sketcher.Constraint("Equal", 10, 18))
sketch6.addConstraint(Sketcher.Constraint("Equal", 17, 19))
sketch6.addConstraint(Sketcher.Constraint("Equal", 19, 21))
sketch6.addConstraint(Sketcher.Constraint("Equal", 14, 22))
sketch6.addConstraint(Sketcher.Constraint("Equal", 21, 23))
sketch6.addConstraint(Sketcher.Constraint("Equal", 23, 25))
sketch6.addConstraint(Sketcher.Constraint("Equal", 18, 26))
sketch6.addConstraint(Sketcher.Constraint("Equal", 25, 27))
sketch6.addConstraint(Sketcher.Constraint("Equal", 27, 31))
sketch6.addConstraint(Sketcher.Constraint("Equal", 22, 32))
sketch6.addConstraint(Sketcher.Constraint("Equal", 31, 33))
sketch6.addConstraint(Sketcher.Constraint("Equal", 33, 35))
sketch6.addConstraint(Sketcher.Constraint("Equal", 26, 36))
sketch6.addConstraint(Sketcher.Constraint("Equal", 35, 37))
sketch6.addConstraint(Sketcher.Constraint("Symmetric", 0, 3, 1, 3, -2))
sketch6.addConstraint(Sketcher.Constraint("Symmetric", 4, 2, 15, 2, -2))
sketch6.addConstraint(Sketcher.Constraint("Symmetric", 20, 2, 33, 2, -2))
sketch6.addConstraint(Sketcher.Constraint("PointOnObject", 3, 3, -1))
sketch6.addConstraint(Sketcher.Constraint("PointOnObject", 2, 1, -1))
sketch6.addConstraint(Sketcher.Constraint("PointOnObject", 28, 1, -1))
sketch6.addConstraint(Sketcher.Constraint("Perpendicular", 4, 16))
sketch6.addConstraint(Sketcher.Constraint("Parallel", 16, 20))
sketch6.addConstraint(Sketcher.Constraint("Horizontal", 7, 3, 13, 3))
sketch6.addConstraint(Sketcher.Constraint("Horizontal", 25, 3, 31, 3))
sketch6.addConstraint(Sketcher.Constraint("Equal", 30, 8))
sketch6.addConstraint(Sketcher.Constraint("Equal", 16, 20))
sketch6.addConstraint(Sketcher.Constraint("Diameter", 0, Q("4 mm")))
sketch6.addConstraint(Sketcher.Constraint("Radius", 5, Q("1 mm")))
sketch6.addConstraint(Sketcher.Constraint("Radius", 6, Q("8 mm")))
sketch6.addConstraint(Sketcher.Constraint("Radius", 10, Q("19 mm")))
sketch6.addConstraint(Sketcher.Constraint("Radius", 29, Q("4 mm")))
sketch6.addConstraint(Sketcher.Constraint("Radius", 3, Q("1.5 mm")))
sketch6.addConstraint(Sketcher.Constraint("DistanceX", 0, 3, -1, 1, Q("16 mm")))
sketch6.addConstraint(Sketcher.Constraint("DistanceY", -1, 1, 0, 3, Q("16 mm")))
sketch6.addConstraint(Sketcher.Constraint("DistanceX", 7, 3, -1, 1, Q("2.5 mm")))
sketch6.addConstraint(Sketcher.Constraint("DistanceY", -1, 1, 11, 3, Q("14.37233 mm")))
sketch6.addConstraint(Sketcher.Constraint("DistanceX", -1, 1, 3, 3, Q("23.574048 mm")))
pocket3 = body.newObject("PartDesign::Pocket", "Pocket002")
pocket3.Profile = sketch6
pocket3.Length = 33

sketch7 = body.newObject("Sketcher::SketchObject", "Sketch006")
sketch7.AttachmentSupport = (doc.getObject("XZ_Plane"), [""])
sketch7.MapMode = "FlatFace"
sketch7.AttachmentOffset = App.Placement(App.Vector(0, 0, -15), App.Rotation())
sketch7.addGeometry(Part.Circle(App.Vector(23.25, 5.25, 0), App.Vector(0, 0, 1), 1.6), False)
sketch7.addGeometry(Part.Circle(App.Vector(23.25, 23.25, 0), App.Vector(0, 0, 1), 1.6), False)
sketch7.addConstraint(Sketcher.Constraint("Equal", 0, 1))
sketch7.addConstraint(Sketcher.Constraint("Vertical", 0, 3, 1, 3))
sketch7.addConstraint(Sketcher.Constraint("Diameter", 0, Q("3.2 mm")))
sketch7.addConstraint(Sketcher.Constraint("DistanceY", 0, 3, 1, 3, Q("18 mm")))
sketch7.addConstraint(Sketcher.Constraint("DistanceX", -1, 1, 0, 3, Q("23.25 mm")))
sketch7.addConstraint(Sketcher.Constraint("DistanceY", -1, 1, 0, 3, Q("5.25 mm")))
pocket4 = body.newObject("PartDesign::Pocket", "Pocket003")
pocket4.Profile = sketch7
pocket4.Type = "ThroughAll"
pocket4.Midplane = True

sketch8 = body.newObject("Sketcher::SketchObject", "Sketch007")
sketch8.AttachmentSupport = (doc.getObject("XZ_Plane"), [""])
sketch8.MapMode = "FlatFace"
sketch8.AttachmentOffset = App.Placement(App.Vector(0, 0, -15), App.Rotation())
sketch8.addGeometry(Part.Circle(App.Vector(23.25, 5.25, 0), App.Vector(0, 0, 1), 2.5), False)
sketch8.addGeometry(Part.Circle(App.Vector(23.25, 23.25, 0), App.Vector(0, 0, 1), 2.5), False)
sketch8.addConstraint(Sketcher.Constraint("Equal", 0, 1))
sketch8.addConstraint(Sketcher.Constraint("Vertical", 0, 3, 1, 3))
sketch8.addConstraint(Sketcher.Constraint("Diameter", 0, Q("5 mm")))
sketch8.addConstraint(Sketcher.Constraint("DistanceY", 0, 3, 1, 3, Q("18 mm")))
sketch8.addConstraint(Sketcher.Constraint("DistanceX", -1, 1, 0, 3, Q("23.25 mm")))
sketch8.addConstraint(Sketcher.Constraint("DistanceY", -1, 1, 0, 3, Q("5.25 mm")))
pocket5 = body.newObject("PartDesign::Pocket", "Pocket004")
pocket5.Profile = sketch8
pocket5.Type = "TwoLengths"
pocket5.Length = 6
pocket5.Length2 = 2

doc.recompute()
